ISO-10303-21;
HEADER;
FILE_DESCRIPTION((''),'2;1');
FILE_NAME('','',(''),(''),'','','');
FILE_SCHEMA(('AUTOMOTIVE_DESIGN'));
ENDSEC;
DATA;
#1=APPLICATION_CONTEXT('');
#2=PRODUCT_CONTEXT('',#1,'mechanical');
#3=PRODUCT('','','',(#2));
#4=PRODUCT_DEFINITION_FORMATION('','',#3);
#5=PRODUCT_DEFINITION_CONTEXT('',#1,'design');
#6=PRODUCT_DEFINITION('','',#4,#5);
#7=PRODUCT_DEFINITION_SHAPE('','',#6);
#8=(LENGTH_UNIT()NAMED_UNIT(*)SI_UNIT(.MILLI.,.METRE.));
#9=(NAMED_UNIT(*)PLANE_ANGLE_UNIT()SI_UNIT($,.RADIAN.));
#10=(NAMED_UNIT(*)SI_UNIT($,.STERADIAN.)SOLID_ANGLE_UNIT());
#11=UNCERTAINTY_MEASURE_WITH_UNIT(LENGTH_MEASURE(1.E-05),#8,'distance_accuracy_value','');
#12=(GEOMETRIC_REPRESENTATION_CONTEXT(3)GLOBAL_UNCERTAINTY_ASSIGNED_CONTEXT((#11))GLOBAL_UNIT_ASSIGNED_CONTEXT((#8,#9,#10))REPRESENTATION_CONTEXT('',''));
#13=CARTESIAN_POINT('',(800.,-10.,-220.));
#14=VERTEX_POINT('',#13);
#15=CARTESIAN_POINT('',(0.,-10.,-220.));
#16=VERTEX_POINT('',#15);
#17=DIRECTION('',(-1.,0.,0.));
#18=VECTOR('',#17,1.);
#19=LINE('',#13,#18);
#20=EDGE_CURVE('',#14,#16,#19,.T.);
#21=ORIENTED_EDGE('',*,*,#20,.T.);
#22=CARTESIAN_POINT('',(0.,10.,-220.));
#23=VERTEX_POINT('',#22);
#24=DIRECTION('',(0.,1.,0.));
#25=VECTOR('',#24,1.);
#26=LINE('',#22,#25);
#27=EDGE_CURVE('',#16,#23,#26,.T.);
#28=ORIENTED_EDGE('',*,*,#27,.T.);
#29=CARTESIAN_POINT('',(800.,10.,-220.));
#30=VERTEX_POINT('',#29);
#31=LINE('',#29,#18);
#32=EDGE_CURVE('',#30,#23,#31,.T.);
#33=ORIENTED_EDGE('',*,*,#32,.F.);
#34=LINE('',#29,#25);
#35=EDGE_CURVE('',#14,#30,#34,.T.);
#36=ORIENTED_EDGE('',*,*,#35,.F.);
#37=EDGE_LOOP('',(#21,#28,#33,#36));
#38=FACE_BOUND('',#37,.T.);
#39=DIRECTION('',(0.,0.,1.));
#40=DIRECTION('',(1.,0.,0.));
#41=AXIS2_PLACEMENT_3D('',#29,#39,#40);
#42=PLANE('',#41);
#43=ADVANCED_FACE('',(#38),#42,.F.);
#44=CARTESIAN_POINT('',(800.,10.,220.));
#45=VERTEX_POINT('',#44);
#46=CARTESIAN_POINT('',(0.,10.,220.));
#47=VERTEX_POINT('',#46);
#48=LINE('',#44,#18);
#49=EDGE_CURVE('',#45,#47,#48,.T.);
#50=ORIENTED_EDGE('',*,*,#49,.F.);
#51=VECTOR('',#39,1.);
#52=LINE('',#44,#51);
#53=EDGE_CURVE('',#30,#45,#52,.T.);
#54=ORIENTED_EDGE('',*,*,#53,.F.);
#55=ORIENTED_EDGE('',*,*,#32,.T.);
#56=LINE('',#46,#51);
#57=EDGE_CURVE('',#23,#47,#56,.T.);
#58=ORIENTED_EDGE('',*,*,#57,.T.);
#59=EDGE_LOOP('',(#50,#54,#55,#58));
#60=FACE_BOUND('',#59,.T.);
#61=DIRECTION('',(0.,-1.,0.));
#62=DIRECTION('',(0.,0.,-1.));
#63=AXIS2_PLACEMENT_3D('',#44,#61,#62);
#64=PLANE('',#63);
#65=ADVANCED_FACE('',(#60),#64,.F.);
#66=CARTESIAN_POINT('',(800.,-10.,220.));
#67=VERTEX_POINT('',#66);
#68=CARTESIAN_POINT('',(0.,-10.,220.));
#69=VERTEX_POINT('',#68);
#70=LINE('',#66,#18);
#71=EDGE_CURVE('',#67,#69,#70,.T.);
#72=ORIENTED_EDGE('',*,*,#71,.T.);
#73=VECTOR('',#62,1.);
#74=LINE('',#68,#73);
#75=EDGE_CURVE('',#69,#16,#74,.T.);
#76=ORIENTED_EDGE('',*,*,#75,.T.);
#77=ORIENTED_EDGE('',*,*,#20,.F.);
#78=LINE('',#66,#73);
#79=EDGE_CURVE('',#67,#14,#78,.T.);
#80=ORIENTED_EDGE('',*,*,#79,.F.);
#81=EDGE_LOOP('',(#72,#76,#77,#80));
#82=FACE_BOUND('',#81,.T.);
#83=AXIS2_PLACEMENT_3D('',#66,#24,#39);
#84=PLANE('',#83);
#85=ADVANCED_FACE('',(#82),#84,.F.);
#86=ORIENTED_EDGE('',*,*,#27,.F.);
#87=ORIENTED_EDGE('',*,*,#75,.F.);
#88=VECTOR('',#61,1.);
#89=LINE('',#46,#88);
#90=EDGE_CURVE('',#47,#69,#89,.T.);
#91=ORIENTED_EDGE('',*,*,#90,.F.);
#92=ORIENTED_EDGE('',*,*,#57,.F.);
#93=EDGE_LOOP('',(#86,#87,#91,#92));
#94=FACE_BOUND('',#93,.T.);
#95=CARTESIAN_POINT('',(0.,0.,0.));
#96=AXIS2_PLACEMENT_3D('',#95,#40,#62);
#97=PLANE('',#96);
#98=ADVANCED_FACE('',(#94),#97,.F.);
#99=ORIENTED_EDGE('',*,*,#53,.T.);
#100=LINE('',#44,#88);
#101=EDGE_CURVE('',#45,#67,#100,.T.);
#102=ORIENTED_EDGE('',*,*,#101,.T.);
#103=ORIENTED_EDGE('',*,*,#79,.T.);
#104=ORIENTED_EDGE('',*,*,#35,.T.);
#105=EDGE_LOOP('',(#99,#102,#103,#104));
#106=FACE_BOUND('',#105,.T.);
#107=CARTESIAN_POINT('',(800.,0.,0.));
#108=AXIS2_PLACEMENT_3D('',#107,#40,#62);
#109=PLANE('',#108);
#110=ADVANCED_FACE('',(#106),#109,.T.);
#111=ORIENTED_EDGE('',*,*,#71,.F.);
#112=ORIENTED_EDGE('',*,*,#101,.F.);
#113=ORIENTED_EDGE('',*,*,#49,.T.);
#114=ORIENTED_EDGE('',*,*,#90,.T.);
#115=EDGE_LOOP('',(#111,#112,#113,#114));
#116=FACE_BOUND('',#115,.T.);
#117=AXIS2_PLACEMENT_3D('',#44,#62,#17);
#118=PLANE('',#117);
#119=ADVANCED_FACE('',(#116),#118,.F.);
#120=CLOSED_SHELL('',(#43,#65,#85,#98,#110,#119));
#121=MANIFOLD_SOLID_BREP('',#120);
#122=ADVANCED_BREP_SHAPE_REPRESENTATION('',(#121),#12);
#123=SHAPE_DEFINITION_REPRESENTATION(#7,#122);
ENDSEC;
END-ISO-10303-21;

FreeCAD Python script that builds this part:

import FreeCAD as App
import Part
import Sketcher

V = App.Vector
Q = App.Units.Quantity


def add_polygon(sketch, points):
    """Adds a closed chain of lines whose ends are joined by coincident constraints."""
    first, n = sketch.GeometryCount, len(points)
    for a, b in zip(points, points[1:] + points[:1]):
        sketch.addGeometry(Part.LineSegment(App.Vector(*a, 0), App.Vector(*b, 0)), False)
    for i in range(n):
        sketch.addConstraint(Sketcher.Constraint("Coincident", first + i, 2, first + (i + 1) % n, 1))

doc = App.newDocument("Part")
body = doc.addObject("PartDesign::Body", "Body")

# Sketch on YZ plane
sketch1 = body.newObject("Sketcher::SketchObject", "Sketch")
sketch1.AttachmentSupport = (doc.getObject("YZ_Plane"), [""])
sketch1.MapMode = "FlatFace"
add_polygon(sketch1, [(10, 220), (-10, 220), (-10, -220), (10, -220)])  # lines 0-3
sketch1.addConstraint(Sketcher.Constraint("Horizontal", 0))
sketch1.addConstraint(Sketcher.Constraint("Vertical", 1))
sketch1.addConstraint(Sketcher.Constraint("Horizontal", 2))
sketch1.addConstraint(Sketcher.Constraint("Vertical", 3))
sketch1.addConstraint(Sketcher.Constraint("Symmetric", 0, 2, 2, 2, -1, 1))
sketch1.addConstraint(Sketcher.Constraint("DistanceX", 0, 2, 0, 1, Q("20 mm")))
sketch1.addConstraint(Sketcher.Constraint("DistanceY", 1, 2, 1, 1, Q("440 mm")))
pad1 = body.newObject("PartDesign::Pad", "Pad")
pad1.Profile = sketch1
pad1.Length = 800

doc.recompute()
